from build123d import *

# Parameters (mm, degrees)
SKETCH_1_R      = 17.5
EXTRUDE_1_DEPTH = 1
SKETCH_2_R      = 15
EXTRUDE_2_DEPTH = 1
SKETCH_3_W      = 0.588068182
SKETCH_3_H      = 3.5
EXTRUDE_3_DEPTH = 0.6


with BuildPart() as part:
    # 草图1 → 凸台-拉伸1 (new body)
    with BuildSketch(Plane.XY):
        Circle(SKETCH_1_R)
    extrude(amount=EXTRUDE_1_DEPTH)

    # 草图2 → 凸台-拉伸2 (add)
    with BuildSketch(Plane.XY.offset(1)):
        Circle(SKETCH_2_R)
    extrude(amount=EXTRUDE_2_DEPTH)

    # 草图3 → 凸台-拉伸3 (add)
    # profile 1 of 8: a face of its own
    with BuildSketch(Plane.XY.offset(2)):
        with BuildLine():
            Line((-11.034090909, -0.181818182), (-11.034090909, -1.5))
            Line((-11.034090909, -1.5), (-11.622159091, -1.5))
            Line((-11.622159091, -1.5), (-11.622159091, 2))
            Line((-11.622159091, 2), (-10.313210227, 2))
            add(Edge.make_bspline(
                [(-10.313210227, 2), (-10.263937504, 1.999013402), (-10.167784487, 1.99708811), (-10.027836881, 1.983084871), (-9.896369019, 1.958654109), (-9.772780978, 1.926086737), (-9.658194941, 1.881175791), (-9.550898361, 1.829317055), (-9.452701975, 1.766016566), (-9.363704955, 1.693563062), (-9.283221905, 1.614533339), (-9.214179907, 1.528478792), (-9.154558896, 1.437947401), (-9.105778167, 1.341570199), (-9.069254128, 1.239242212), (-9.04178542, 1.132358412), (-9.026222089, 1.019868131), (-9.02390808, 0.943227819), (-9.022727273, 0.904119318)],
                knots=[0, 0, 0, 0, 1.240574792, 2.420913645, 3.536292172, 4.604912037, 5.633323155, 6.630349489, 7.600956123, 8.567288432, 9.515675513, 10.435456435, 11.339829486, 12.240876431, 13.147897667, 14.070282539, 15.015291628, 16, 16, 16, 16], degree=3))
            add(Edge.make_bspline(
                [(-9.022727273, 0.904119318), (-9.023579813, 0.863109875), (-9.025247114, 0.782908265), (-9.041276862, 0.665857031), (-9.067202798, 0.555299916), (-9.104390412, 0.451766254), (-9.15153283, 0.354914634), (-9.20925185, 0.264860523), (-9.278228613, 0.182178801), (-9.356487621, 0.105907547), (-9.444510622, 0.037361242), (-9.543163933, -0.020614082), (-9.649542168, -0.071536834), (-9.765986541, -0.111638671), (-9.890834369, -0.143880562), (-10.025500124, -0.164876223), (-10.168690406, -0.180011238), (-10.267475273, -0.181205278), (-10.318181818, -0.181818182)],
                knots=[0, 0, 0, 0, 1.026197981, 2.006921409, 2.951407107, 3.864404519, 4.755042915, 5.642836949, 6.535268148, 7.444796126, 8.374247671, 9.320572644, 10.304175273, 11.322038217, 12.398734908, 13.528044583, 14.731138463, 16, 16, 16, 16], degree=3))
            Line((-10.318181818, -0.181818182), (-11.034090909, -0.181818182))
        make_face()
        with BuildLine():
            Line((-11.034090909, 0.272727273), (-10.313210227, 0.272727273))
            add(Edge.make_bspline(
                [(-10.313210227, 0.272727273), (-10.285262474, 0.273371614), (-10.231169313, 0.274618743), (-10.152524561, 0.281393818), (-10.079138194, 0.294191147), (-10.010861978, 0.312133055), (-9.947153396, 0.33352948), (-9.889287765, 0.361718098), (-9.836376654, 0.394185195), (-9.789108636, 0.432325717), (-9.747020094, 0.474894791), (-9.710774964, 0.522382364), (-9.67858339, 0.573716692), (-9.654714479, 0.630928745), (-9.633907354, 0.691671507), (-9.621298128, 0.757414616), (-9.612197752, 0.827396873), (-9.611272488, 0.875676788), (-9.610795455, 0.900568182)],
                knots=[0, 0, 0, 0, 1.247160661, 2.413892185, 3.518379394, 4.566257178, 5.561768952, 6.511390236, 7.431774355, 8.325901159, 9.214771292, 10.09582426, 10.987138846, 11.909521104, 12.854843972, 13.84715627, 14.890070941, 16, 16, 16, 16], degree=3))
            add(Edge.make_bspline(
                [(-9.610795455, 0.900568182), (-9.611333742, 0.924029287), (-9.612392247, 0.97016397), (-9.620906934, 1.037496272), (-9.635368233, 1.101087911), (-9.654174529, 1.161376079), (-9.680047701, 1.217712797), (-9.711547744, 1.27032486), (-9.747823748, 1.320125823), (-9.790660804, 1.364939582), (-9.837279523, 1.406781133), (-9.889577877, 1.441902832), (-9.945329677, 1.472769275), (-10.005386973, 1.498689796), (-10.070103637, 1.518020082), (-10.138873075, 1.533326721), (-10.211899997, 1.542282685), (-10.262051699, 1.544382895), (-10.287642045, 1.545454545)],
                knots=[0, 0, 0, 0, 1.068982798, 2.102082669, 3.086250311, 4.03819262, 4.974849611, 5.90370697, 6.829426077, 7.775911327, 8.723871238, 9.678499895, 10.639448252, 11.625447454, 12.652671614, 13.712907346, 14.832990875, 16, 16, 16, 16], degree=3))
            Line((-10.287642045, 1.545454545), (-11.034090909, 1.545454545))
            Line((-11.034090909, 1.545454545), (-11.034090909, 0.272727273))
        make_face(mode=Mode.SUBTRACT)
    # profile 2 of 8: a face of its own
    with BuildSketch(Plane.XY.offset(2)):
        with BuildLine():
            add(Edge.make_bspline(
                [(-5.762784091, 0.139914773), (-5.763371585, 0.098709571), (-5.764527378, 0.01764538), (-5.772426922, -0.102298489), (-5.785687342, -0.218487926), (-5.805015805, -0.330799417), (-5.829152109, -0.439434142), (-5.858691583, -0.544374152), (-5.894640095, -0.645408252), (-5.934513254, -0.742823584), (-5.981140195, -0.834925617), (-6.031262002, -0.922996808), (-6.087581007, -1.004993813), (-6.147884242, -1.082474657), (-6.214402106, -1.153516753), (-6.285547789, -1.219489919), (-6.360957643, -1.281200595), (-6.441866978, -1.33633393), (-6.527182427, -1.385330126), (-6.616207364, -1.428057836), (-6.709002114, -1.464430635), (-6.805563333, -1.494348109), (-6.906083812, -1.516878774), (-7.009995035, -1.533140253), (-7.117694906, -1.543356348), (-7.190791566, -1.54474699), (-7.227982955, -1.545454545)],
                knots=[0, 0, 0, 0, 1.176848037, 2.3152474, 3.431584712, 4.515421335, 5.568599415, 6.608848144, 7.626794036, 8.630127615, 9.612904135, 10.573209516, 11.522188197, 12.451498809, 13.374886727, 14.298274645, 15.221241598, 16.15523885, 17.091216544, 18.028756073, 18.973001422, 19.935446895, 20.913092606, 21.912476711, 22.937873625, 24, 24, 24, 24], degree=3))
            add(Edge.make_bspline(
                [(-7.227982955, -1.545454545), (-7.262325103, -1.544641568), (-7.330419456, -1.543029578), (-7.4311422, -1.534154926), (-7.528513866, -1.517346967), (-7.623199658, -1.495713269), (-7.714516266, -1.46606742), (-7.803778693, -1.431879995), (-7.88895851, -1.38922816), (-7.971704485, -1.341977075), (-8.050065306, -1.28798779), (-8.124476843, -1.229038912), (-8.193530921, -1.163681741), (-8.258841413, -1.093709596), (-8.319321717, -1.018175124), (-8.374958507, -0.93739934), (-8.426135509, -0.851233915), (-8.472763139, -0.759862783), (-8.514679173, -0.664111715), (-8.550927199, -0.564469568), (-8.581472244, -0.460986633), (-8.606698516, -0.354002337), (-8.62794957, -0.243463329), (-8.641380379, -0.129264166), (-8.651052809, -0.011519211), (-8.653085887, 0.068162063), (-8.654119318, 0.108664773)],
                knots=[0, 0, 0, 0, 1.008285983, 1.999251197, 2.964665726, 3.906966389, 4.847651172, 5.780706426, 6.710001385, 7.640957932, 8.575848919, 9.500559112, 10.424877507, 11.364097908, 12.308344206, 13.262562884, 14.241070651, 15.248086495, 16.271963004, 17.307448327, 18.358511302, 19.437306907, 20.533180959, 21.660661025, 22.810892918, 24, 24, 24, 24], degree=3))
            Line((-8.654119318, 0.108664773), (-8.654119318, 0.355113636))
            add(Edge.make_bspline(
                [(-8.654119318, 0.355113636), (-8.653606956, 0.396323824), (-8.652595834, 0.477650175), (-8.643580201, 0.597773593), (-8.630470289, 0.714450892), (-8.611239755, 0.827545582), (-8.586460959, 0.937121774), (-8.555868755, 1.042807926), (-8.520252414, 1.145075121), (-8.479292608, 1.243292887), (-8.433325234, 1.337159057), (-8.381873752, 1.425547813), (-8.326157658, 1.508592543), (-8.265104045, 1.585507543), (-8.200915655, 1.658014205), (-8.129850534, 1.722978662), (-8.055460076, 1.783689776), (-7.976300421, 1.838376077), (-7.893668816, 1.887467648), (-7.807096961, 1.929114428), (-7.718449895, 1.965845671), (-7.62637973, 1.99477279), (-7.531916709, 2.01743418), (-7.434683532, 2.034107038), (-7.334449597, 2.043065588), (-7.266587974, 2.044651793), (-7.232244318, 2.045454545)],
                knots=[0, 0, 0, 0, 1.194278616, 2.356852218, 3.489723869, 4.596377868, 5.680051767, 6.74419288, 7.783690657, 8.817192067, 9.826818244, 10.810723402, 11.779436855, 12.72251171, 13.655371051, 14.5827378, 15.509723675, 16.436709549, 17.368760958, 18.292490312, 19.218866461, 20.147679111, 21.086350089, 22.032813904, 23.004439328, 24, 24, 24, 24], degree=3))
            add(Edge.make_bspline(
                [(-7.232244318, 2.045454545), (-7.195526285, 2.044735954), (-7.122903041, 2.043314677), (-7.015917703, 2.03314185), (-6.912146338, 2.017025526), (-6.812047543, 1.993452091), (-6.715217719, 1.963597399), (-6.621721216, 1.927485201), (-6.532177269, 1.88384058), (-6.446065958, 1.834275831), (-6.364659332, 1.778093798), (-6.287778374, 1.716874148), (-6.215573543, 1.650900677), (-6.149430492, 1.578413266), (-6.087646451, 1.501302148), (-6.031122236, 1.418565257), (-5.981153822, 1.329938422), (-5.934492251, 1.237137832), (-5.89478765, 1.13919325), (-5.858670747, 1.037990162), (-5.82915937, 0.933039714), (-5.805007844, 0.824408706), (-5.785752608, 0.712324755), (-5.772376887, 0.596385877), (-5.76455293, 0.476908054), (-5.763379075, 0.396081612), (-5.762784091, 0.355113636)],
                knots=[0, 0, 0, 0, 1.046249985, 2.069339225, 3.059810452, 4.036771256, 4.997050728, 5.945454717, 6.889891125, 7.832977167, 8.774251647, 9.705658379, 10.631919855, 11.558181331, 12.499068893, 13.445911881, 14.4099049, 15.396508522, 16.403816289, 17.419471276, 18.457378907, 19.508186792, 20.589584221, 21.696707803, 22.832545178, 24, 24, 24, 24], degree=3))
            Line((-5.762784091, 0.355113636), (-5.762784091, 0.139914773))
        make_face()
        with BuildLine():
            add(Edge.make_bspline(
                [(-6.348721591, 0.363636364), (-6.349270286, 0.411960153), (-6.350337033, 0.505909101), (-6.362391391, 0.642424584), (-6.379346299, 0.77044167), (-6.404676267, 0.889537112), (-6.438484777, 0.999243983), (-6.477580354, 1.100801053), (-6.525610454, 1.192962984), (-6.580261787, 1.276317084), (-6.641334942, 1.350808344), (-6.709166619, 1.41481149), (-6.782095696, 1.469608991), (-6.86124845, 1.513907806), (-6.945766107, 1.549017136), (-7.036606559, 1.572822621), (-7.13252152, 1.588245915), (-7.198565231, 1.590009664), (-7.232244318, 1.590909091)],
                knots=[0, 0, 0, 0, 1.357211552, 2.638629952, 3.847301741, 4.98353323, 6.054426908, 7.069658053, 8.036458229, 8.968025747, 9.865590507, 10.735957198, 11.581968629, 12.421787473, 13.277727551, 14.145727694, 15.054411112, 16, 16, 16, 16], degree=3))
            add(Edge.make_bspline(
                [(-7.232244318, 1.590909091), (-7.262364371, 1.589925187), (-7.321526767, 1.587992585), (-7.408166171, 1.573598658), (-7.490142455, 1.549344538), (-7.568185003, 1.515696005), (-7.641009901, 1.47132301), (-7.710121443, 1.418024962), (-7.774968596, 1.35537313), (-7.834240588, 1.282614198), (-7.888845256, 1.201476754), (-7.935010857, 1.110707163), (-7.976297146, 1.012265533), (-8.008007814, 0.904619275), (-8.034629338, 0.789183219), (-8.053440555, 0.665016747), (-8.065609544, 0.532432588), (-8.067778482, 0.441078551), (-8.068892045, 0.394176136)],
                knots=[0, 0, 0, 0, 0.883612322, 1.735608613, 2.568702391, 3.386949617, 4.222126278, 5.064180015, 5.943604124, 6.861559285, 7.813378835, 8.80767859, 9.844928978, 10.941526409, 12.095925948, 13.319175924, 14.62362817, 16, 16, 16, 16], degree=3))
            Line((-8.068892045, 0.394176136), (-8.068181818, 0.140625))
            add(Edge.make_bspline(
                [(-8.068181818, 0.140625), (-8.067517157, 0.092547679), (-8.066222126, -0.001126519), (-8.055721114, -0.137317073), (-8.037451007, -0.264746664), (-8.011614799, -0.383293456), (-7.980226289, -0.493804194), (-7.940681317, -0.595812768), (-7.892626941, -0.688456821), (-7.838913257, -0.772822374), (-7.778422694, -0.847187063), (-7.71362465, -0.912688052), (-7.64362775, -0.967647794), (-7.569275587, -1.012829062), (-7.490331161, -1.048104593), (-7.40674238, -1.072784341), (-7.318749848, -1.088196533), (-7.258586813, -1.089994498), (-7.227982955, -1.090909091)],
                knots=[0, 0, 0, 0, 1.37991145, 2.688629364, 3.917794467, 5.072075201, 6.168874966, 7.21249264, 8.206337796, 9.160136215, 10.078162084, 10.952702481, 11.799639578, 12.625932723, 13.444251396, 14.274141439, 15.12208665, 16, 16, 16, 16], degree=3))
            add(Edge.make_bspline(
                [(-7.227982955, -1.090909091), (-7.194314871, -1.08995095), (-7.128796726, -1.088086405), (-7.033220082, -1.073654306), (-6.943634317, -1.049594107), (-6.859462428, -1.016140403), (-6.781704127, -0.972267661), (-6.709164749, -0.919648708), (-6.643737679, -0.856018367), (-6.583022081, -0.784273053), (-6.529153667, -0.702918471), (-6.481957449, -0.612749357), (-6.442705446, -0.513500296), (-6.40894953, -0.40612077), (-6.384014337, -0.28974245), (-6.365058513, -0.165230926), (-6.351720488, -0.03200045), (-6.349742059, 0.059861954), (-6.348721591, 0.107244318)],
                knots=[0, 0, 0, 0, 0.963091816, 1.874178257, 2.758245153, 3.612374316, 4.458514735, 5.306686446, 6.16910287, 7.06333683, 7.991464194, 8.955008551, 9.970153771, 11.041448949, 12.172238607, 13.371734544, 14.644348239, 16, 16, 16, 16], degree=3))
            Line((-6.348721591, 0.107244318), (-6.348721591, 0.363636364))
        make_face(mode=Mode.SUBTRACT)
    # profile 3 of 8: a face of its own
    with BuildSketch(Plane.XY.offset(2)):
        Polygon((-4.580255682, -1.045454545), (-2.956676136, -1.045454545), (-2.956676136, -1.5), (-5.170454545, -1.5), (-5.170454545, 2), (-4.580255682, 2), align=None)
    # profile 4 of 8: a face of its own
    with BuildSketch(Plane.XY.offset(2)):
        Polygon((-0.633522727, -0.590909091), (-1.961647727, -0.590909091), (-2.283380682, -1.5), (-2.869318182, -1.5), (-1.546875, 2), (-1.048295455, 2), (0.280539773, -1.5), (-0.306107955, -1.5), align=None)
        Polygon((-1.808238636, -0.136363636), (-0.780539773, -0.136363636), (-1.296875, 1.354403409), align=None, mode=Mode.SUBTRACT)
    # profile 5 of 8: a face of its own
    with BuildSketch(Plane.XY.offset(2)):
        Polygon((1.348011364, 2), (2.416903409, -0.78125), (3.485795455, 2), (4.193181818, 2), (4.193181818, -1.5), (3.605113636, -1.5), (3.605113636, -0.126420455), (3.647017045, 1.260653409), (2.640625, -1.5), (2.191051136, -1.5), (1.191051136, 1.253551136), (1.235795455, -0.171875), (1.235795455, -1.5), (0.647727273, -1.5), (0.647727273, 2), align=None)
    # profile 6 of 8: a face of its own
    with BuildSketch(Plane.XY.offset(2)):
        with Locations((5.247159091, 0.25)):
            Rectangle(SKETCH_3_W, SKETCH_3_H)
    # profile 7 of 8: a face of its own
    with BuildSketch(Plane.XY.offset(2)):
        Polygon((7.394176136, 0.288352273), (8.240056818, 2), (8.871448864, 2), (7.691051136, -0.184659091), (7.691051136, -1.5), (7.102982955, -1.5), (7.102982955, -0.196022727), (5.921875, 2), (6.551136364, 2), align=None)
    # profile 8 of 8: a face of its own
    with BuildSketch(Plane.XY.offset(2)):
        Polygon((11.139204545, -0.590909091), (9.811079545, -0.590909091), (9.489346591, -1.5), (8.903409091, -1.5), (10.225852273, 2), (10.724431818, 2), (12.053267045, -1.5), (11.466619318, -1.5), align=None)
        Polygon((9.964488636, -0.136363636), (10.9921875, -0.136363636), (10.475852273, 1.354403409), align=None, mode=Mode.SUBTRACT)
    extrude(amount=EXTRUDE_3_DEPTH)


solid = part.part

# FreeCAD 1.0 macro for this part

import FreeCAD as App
import Part
import Sketcher
from FreeCAD import Vector

doc = App.newDocument("Part")
body = doc.addObject("PartDesign::Body", "Body")

# Sketch on XY plane
sketch1 = body.newObject("Sketcher::SketchObject", "Sketch")
sketch1.AttachmentSupport = (doc.getObject("XY_Plane"), [""])
sketch1.MapMode = "FlatFace"
sketch1.addGeometry(Part.Circle(Vector(0, 0, 0), Vector(0, 0, 1), 18), False)
sketch1.addConstraint(Sketcher.Constraint("Coincident", 0, 3, -1, 1))
sketch1.addConstraint(Sketcher.Constraint("Diameter", 0, 35.0))
pad1 = body.newObject("PartDesign::Pad", "Pad")
pad1.Profile = sketch1
pad1.Length = 1

# Sketch on XY plane
sketch2 = body.newObject("Sketcher::SketchObject", "Sketch001")
sketch2.AttachmentSupport = (doc.getObject("XY_Plane"), [""])
sketch2.MapMode = "FlatFace"
sketch2.AttachmentOffset = App.Placement(Vector(0, 0, 1), App.Rotation())
sketch2.addGeometry(Part.Circle(Vector(0, 0, 0), Vector(0, 0, 1), 15), False)
sketch2.addConstraint(Sketcher.Constraint("Coincident", 0, 3, -1, 1))
sketch2.addConstraint(Sketcher.Constraint("Diameter", 0, 30.0))
pad2 = body.newObject("PartDesign::Pad", "Pad001")
pad2.Profile = sketch2
pad2.Length = 1

# Sketch on XY plane
sketch3 = body.newObject("Sketcher::SketchObject", "Sketch002")
sketch3.AttachmentSupport = (doc.getObject("XY_Plane"), [""])
sketch3.MapMode = "FlatFace"
sketch3.AttachmentOffset = App.Placement(Vector(0, 0, 2), App.Rotation())
sketch3.addGeometry(Part.LineSegment(Vector(-11.034091, -1.5, 0), Vector(-11.034091, -0.181818, 0)), False)
sketch3.addGeometry(Part.LineSegment(Vector(-11.034091, -0.181818, 0), Vector(-10.318182, -0.181818, 0)), False)
sketch3.addGeometry(Part.BSplineCurve([Vector(-9.022727, 0.904119, 0), Vector(-9.02358, 0.86311, 0), Vector(-9.025247, 0.782908, 0), Vector(-9.041277, 0.665857, 0), Vector(-9.067203, 0.5553, 0), Vector(-9.10439, 0.451766, 0), Vector(-9.151533, 0.354915, 0), Vector(-9.209252, 0.264861, 0), Vector(-9.278229, 0.182179, 0), Vector(-9.356488, 0.105908, 0), Vector(-9.444511, 0.037361, 0), Vector(-9.543164, -0.020614, 0), Vector(-9.649542, -0.071537, 0), Vector(-9.765987, -0.111639, 0), Vector(-9.890834, -0.143881, 0), Vector(-10.0255, -0.164876, 0), Vector(-10.16869, -0.180011, 0), Vector(-10.267475, -0.181205, 0), Vector(-10.318182, -0.181818, 0)], [4, 1, 1, 1, 1, 1, 1, 1, 1, 1, 1, 1, 1, 1, 1, 1, 4], [0, 1.026197981, 2.006921409, 2.951407107, 3.864404519, 4.755042915, 5.642836949, 6.535268148, 7.444796126, 8.374247671, 9.320572644, 10.304175273, 11.322038217, 12.398734908, 13.528044583, 14.731138463, 16], False, 3, [1, 1, 1, 1, 1, 1, 1, 1, 1, 1, 1, 1, 1, 1, 1, 1, 1, 1, 1], False), False)
sketch3.addGeometry(Part.BSplineCurve([Vector(-10.31321, 2, 0), Vector(-10.263938, 1.999013, 0), Vector(-10.167784, 1.997088, 0), Vector(-10.027837, 1.983085, 0), Vector(-9.896369, 1.958654, 0), Vector(-9.772781, 1.926087, 0), Vector(-9.658195, 1.881176, 0), Vector(-9.550898, 1.829317, 0), Vector(-9.452702, 1.766017, 0), Vector(-9.363705, 1.693563, 0), Vector(-9.283222, 1.614533, 0), Vector(-9.21418, 1.528479, 0), Vector(-9.154559, 1.437947, 0), Vector(-9.105778, 1.34157, 0), Vector(-9.069254, 1.239242, 0), Vector(-9.041785, 1.132358, 0), Vector(-9.026222, 1.019868, 0), Vector(-9.023908, 0.943228, 0), Vector(-9.022727, 0.904119, 0)], [4, 1, 1, 1, 1, 1, 1, 1, 1, 1, 1, 1, 1, 1, 1, 1, 4], [0, 1.240574792, 2.420913645, 3.536292172, 4.604912037, 5.633323155, 6.630349489, 7.600956123, 8.567288432, 9.515675513, 10.435456435, 11.339829486, 12.240876431, 13.147897667, 14.070282539, 15.015291628, 16], False, 3, [1, 1, 1, 1, 1, 1, 1, 1, 1, 1, 1, 1, 1, 1, 1, 1, 1, 1, 1], False), False)
sketch3.addGeometry(Part.LineSegment(Vector(-10.31321, 2, 0), Vector(-11.622159, 2, 0)), False)
sketch3.addGeometry(Part.LineSegment(Vector(-11.622159, 2, 0), Vector(-11.622159, -1.5, 0)), False)
sketch3.addGeometry(Part.LineSegment(Vector(-11.622159, -1.5, 0), Vector(-11.034091, -1.5, 0)), False)
sketch3.addGeometry(Part.LineSegment(Vector(-11.034091, 0.272727, 0), Vector(-11.034091, 1.545455, 0)), False)
sketch3.addGeometry(Part.LineSegment(Vector(-11.034091, 1.545455, 0), Vector(-10.287642, 1.545455, 0)), False)
sketch3.addGeometry(Part.BSplineCurve([Vector(-9.610795, 0.900568, 0), Vector(-9.611334, 0.924029, 0), Vector(-9.612392, 0.970164, 0), Vector(-9.620907, 1.037496, 0), Vector(-9.635368, 1.101088, 0), Vector(-9.654175, 1.161376, 0), Vector(-9.680048, 1.217713, 0), Vector(-9.711548, 1.270325, 0), Vector(-9.747824, 1.320126, 0), Vector(-9.790661, 1.36494, 0), Vector(-9.83728, 1.406781, 0), Vector(-9.889578, 1.441903, 0), Vector(-9.94533, 1.472769, 0), Vector(-10.005387, 1.49869, 0), Vector(-10.070104, 1.51802, 0), Vector(-10.138873, 1.533327, 0), Vector(-10.2119, 1.542283, 0), Vector(-10.262052, 1.544383, 0), Vector(-10.287642, 1.545455, 0)], [4, 1, 1, 1, 1, 1, 1, 1, 1, 1, 1, 1, 1, 1, 1, 1, 4], [0, 1.068982798, 2.102082669, 3.086250311, 4.03819262, 4.974849611, 5.90370697, 6.829426077, 7.775911327, 8.723871238, 9.678499895, 10.639448252, 11.625447454, 12.652671614, 13.712907346, 14.832990875, 16], False, 3, [1, 1, 1, 1, 1, 1, 1, 1, 1, 1, 1, 1, 1, 1, 1, 1, 1, 1, 1], False), False)
sketch3.addGeometry(Part.BSplineCurve([Vector(-10.31321, 0.272727, 0), Vector(-10.285262, 0.273372, 0), Vector(-10.231169, 0.274619, 0), Vector(-10.152525, 0.281394, 0), Vector(-10.079138, 0.294191, 0), Vector(-10.010862, 0.312133, 0), Vector(-9.947153, 0.333529, 0), Vector(-9.889288, 0.361718, 0), Vector(-9.836377, 0.394185, 0), Vector(-9.789109, 0.432326, 0), Vector(-9.74702, 0.474895, 0), Vector(-9.710775, 0.522382, 0), Vector(-9.678583, 0.573717, 0), Vector(-9.654714, 0.630929, 0), Vector(-9.633907, 0.691672, 0), Vector(-9.621298, 0.757415, 0), Vector(-9.612198, 0.827397, 0), Vector(-9.611272, 0.875677, 0), Vector(-9.610795, 0.900568, 0)], [4, 1, 1, 1, 1, 1, 1, 1, 1, 1, 1, 1, 1, 1, 1, 1, 4], [0, 1.247160661, 2.413892185, 3.518379394, 4.566257178, 5.561768952, 6.511390236, 7.431774355, 8.325901159, 9.214771292, 10.09582426, 10.987138846, 11.909521104, 12.854843972, 13.84715627, 14.890070941, 16], False, 3, [1, 1, 1, 1, 1, 1, 1, 1, 1, 1, 1, 1, 1, 1, 1, 1, 1, 1, 1], False), False)
sketch3.addGeometry(Part.LineSegment(Vector(-10.31321, 0.272727, 0), Vector(-11.034091, 0.272727, 0)), False)
sketch3.addGeometry(Part.BSplineCurve([Vector(-5.762784, 0.139915, 0), Vector(-5.763372, 0.09871, 0), Vector(-5.764527, 0.017645, 0), Vector(-5.772427, -0.102298, 0), Vector(-5.785687, -0.218488, 0), Vector(-5.805016, -0.330799, 0), Vector(-5.829152, -0.439434, 0), Vector(-5.858692, -0.544374, 0), Vector(-5.89464, -0.645408, 0), Vector(-5.934513, -0.742824, 0), Vector(-5.98114, -0.834926, 0), Vector(-6.031262, -0.922997, 0), Vector(-6.087581, -1.004994, 0), Vector(-6.147884, -1.082475, 0), Vector(-6.214402, -1.153517, 0), Vector(-6.285548, -1.21949, 0), Vector(-6.360958, -1.281201, 0), Vector(-6.441867, -1.336334, 0), Vector(-6.527182, -1.38533, 0), Vector(-6.616207, -1.428058, 0), Vector(-6.709002, -1.464431, 0), Vector(-6.805563, -1.494348, 0), Vector(-6.906084, -1.516879, 0), Vector(-7.009995, -1.53314, 0), Vector(-7.117695, -1.543356, 0), Vector(-7.190792, -1.544747, 0), Vector(-7.227983, -1.545455, 0)], [4, 1, 1, 1, 1, 1, 1, 1, 1, 1, 1, 1, 1, 1, 1, 1, 1, 1, 1, 1, 1, 1, 1, 1, 4], [0, 1.176848037, 2.3152474, 3.431584712, 4.515421335, 5.568599415, 6.608848144, 7.626794036, 8.630127615, 9.612904135, 10.573209516, 11.522188197, 12.451498809, 13.374886727, 14.298274645, 15.221241598, 16.15523885, 17.091216544, 18.028756073, 18.973001422, 19.935446895, 20.913092606, 21.912476711, 22.937873625, 24], False, 3, [1, 1, 1, 1, 1, 1, 1, 1, 1, 1, 1, 1, 1, 1, 1, 1, 1, 1, 1, 1, 1, 1, 1, 1, 1, 1, 1], False), False)
sketch3.addGeometry(Part.LineSegment(Vector(-5.762784, 0.139915, 0), Vector(-5.762784, 0.355114, 0)), False)
sketch3.addGeometry(Part.BSplineCurve([Vector(-7.232244, 2.045455, 0), Vector(-7.195526, 2.044736, 0), Vector(-7.122903, 2.043315, 0), Vector(-7.015918, 2.033142, 0), Vector(-6.912146, 2.017026, 0), Vector(-6.812048, 1.993452, 0), Vector(-6.715218, 1.963597, 0), Vector(-6.621721, 1.927485, 0), Vector(-6.532177, 1.883841, 0), Vector(-6.446066, 1.834276, 0), Vector(-6.364659, 1.778094, 0), Vector(-6.287778, 1.716874, 0), Vector(-6.215574, 1.650901, 0), Vector(-6.14943, 1.578413, 0), Vector(-6.087646, 1.501302, 0), Vector(-6.031122, 1.418565, 0), Vector(-5.981154, 1.329938, 0), Vector(-5.934492, 1.237138, 0), Vector(-5.894788, 1.139193, 0), Vector(-5.858671, 1.03799, 0), Vector(-5.829159, 0.93304, 0), Vector(-5.805008, 0.824409, 0), Vector(-5.785753, 0.712325, 0), Vector(-5.772377, 0.596386, 0), Vector(-5.764553, 0.476908, 0), Vector(-5.763379, 0.396082, 0), Vector(-5.762784, 0.355114, 0)], [4, 1, 1, 1, 1, 1, 1, 1, 1, 1, 1, 1, 1, 1, 1, 1, 1, 1, 1, 1, 1, 1, 1, 1, 4], [0, 1.046249985, 2.069339225, 3.059810452, 4.036771256, 4.997050728, 5.945454717, 6.889891125, 7.832977167, 8.774251647, 9.705658379, 10.631919855, 11.558181331, 12.499068893, 13.445911881, 14.4099049, 15.396508522, 16.403816289, 17.419471276, 18.457378907, 19.508186792, 20.589584221, 21.696707803, 22.832545178, 24], False, 3, [1, 1, 1, 1, 1, 1, 1, 1, 1, 1, 1, 1, 1, 1, 1, 1, 1, 1, 1, 1, 1, 1, 1, 1, 1, 1, 1], False), False)
sketch3.addGeometry(Part.BSplineCurve([Vector(-8.654119, 0.355114, 0), Vector(-8.653607, 0.396324, 0), Vector(-8.652596, 0.47765, 0), Vector(-8.64358, 0.597774, 0), Vector(-8.63047, 0.714451, 0), Vector(-8.61124, 0.827546, 0), Vector(-8.586461, 0.937122, 0), Vector(-8.555869, 1.042808, 0), Vector(-8.520252, 1.145075, 0), Vector(-8.479293, 1.243293, 0), Vector(-8.433325, 1.337159, 0), Vector(-8.381874, 1.425548, 0), Vector(-8.326158, 1.508593, 0), Vector(-8.265104, 1.585508, 0), Vector(-8.200916, 1.658014, 0), Vector(-8.129851, 1.722979, 0), Vector(-8.05546, 1.78369, 0), Vector(-7.9763, 1.838376, 0), Vector(-7.893669, 1.887468, 0), Vector(-7.807097, 1.929114, 0), Vector(-7.71845, 1.965846, 0), Vector(-7.62638, 1.994773, 0), Vector(-7.531917, 2.017434, 0), Vector(-7.434684, 2.034107, 0), Vector(-7.33445, 2.043066, 0), Vector(-7.266588, 2.044652, 0), Vector(-7.232244, 2.045455, 0)], [4, 1, 1, 1, 1, 1, 1, 1, 1, 1, 1, 1, 1, 1, 1, 1, 1, 1, 1, 1, 1, 1, 1, 1, 4], [0, 1.194278616, 2.356852218, 3.489723869, 4.596377868, 5.680051767, 6.74419288, 7.783690657, 8.817192067, 9.826818244, 10.810723402, 11.779436855, 12.72251171, 13.655371051, 14.5827378, 15.509723675, 16.436709549, 17.368760958, 18.292490312, 19.218866461, 20.147679111, 21.086350089, 22.032813904, 23.004439328, 24], False, 3, [1, 1, 1, 1, 1, 1, 1, 1, 1, 1, 1, 1, 1, 1, 1, 1, 1, 1, 1, 1, 1, 1, 1, 1, 1, 1, 1], False), False)
sketch3.addGeometry(Part.LineSegment(Vector(-8.654119, 0.355114, 0), Vector(-8.654119, 0.108665, 0)), False)
sketch3.addGeometry(Part.BSplineCurve([Vector(-7.227983, -1.545455, 0), Vector(-7.262325, -1.544642, 0), Vector(-7.330419, -1.54303, 0), Vector(-7.431142, -1.534155, 0), Vector(-7.528514, -1.517347, 0), Vector(-7.6232, -1.495713, 0), Vector(-7.714516, -1.466067, 0), Vector(-7.803779, -1.43188, 0), Vector(-7.888959, -1.389228, 0), Vector(-7.971704, -1.341977, 0), Vector(-8.050065, -1.287988, 0), Vector(-8.124477, -1.229039, 0), Vector(-8.193531, -1.163682, 0), Vector(-8.258841, -1.09371, 0), Vector(-8.319322, -1.018175, 0), Vector(-8.374959, -0.937399, 0), Vector(-8.426136, -0.851234, 0), Vector(-8.472763, -0.759863, 0), Vector(-8.514679, -0.664112, 0), Vector(-8.550927, -0.56447, 0), Vector(-8.581472, -0.460987, 0), Vector(-8.606699, -0.354002, 0), Vector(-8.62795, -0.243463, 0), Vector(-8.64138, -0.129264, 0), Vector(-8.651053, -0.011519, 0), Vector(-8.653086, 0.068162, 0), Vector(-8.654119, 0.108665, 0)], [4, 1, 1, 1, 1, 1, 1, 1, 1, 1, 1, 1, 1, 1, 1, 1, 1, 1, 1, 1, 1, 1, 1, 1, 4], [0, 1.008285983, 1.999251197, 2.964665726, 3.906966389, 4.847651172, 5.780706426, 6.710001385, 7.640957932, 8.575848919, 9.500559112, 10.424877507, 11.364097908, 12.308344206, 13.262562884, 14.241070651, 15.248086495, 16.271963004, 17.307448327, 18.358511302, 19.437306907, 20.533180959, 21.660661025, 22.810892918, 24], False, 3, [1, 1, 1, 1, 1, 1, 1, 1, 1, 1, 1, 1, 1, 1, 1, 1, 1, 1, 1, 1, 1, 1, 1, 1, 1, 1, 1], False), False)
sketch3.addGeometry(Part.LineSegment(Vector(-6.348722, 0.363636, 0), Vector(-6.348722, 0.107244, 0)), False)
sketch3.addGeometry(Part.BSplineCurve([Vector(-7.227983, -1.090909, 0), Vector(-7.194315, -1.089951, 0), Vector(-7.128797, -1.088086, 0), Vector(-7.03322, -1.073654, 0), Vector(-6.943634, -1.049594, 0), Vector(-6.859462, -1.01614, 0), Vector(-6.781704, -0.972268, 0), Vector(-6.709165, -0.919649, 0), Vector(-6.643738, -0.856018, 0), Vector(-6.583022, -0.784273, 0), Vector(-6.529154, -0.702918, 0), Vector(-6.481957, -0.612749, 0), Vector(-6.442705, -0.5135, 0), Vector(-6.40895, -0.406121, 0), Vector(-6.384014, -0.289742, 0), Vector(-6.365059, -0.165231, 0), Vector(-6.35172, -0.032, 0), Vector(-6.349742, 0.059862, 0), Vector(-6.348722, 0.107244, 0)], [4, 1, 1, 1, 1, 1, 1, 1, 1, 1, 1, 1, 1, 1, 1, 1, 4], [0, 0.963091816, 1.874178257, 2.758245153, 3.612374316, 4.458514735, 5.306686446, 6.16910287, 7.06333683, 7.991464194, 8.955008551, 9.970153771, 11.041448949, 12.172238607, 13.371734544, 14.644348239, 16], False, 3, [1, 1, 1, 1, 1, 1, 1, 1, 1, 1, 1, 1, 1, 1, 1, 1, 1, 1, 1], False), False)
sketch3.addGeometry(Part.BSplineCurve([Vector(-8.068182, 0.140625, 0), Vector(-8.067517, 0.092548, 0), Vector(-8.066222, -0.001127, 0), Vector(-8.055721, -0.137317, 0), Vector(-8.037451, -0.264747, 0), Vector(-8.011615, -0.383293, 0), Vector(-7.980226, -0.493804, 0), Vector(-7.940681, -0.595813, 0), Vector(-7.892627, -0.688457, 0), Vector(-7.838913, -0.772822, 0), Vector(-7.778423, -0.847187, 0), Vector(-7.713625, -0.912688, 0), Vector(-7.643628, -0.967648, 0), Vector(-7.569276, -1.012829, 0), Vector(-7.490331, -1.048105, 0), Vector(-7.406742, -1.072784, 0), Vector(-7.31875, -1.088197, 0), Vector(-7.258587, -1.089994, 0), Vector(-7.227983, -1.090909, 0)], [4, 1, 1, 1, 1, 1, 1, 1, 1, 1, 1, 1, 1, 1, 1, 1, 4], [0, 1.37991145, 2.688629364, 3.917794467, 5.072075201, 6.168874966, 7.21249264, 8.206337796, 9.160136215, 10.078162084, 10.952702481, 11.799639578, 12.625932723, 13.444251396, 14.274141439, 15.12208665, 16], False, 3, [1, 1, 1, 1, 1, 1, 1, 1, 1, 1, 1, 1, 1, 1, 1, 1, 1, 1, 1], False), False)
sketch3.addGeometry(Part.LineSegment(Vector(-8.068182, 0.140625, 0), Vector(-8.068892, 0.394176, 0)), False)
sketch3.addGeometry(Part.BSplineCurve([Vector(-7.232244, 1.590909, 0), Vector(-7.262364, 1.589925, 0), Vector(-7.321527, 1.587993, 0), Vector(-7.408166, 1.573599, 0), Vector(-7.490142, 1.549345, 0), Vector(-7.568185, 1.515696, 0), Vector(-7.64101, 1.471323, 0), Vector(-7.710121, 1.418025, 0), Vector(-7.774969, 1.355373, 0), Vector(-7.834241, 1.282614, 0), Vector(-7.888845, 1.201477, 0), Vector(-7.935011, 1.110707, 0), Vector(-7.976297, 1.012266, 0), Vector(-8.008008, 0.904619, 0), Vector(-8.034629, 0.789183, 0), Vector(-8.053441, 0.665017, 0), Vector(-8.06561, 0.532433, 0), Vector(-8.067778, 0.441079, 0), Vector(-8.068892, 0.394176, 0)], [4, 1, 1, 1, 1, 1, 1, 1, 1, 1, 1, 1, 1, 1, 1, 1, 4], [0, 0.883612322, 1.735608613, 2.568702391, 3.386949617, 4.222126278, 5.064180015, 5.943604124, 6.861559285, 7.813378835, 8.80767859, 9.844928978, 10.941526409, 12.095925948, 13.319175924, 14.62362817, 16], False, 3, [1, 1, 1, 1, 1, 1, 1, 1, 1, 1, 1, 1, 1, 1, 1, 1, 1, 1, 1], False), False)
sketch3.addGeometry(Part.BSplineCurve([Vector(-6.348722, 0.363636, 0), Vector(-6.34927, 0.41196, 0), Vector(-6.350337, 0.505909, 0), Vector(-6.362391, 0.642425, 0), Vector(-6.379346, 0.770442, 0), Vector(-6.404676, 0.889537, 0), Vector(-6.438485, 0.999244, 0), Vector(-6.47758, 1.100801, 0), Vector(-6.52561, 1.192963, 0), Vector(-6.580262, 1.276317, 0), Vector(-6.641335, 1.350808, 0), Vector(-6.709167, 1.414811, 0), Vector(-6.782096, 1.469609, 0), Vector(-6.861248, 1.513908, 0), Vector(-6.945766, 1.549017, 0), Vector(-7.036607, 1.572823, 0), Vector(-7.132522, 1.588246, 0), Vector(-7.198565, 1.59001, 0), Vector(-7.232244, 1.590909, 0)], [4, 1, 1, 1, 1, 1, 1, 1, 1, 1, 1, 1, 1, 1, 1, 1, 4], [0, 1.357211552, 2.638629952, 3.847301741, 4.98353323, 6.054426908, 7.069658053, 8.036458229, 8.968025747, 9.865590507, 10.735957198, 11.581968629, 12.421787473, 13.277727551, 14.145727694, 15.054411112, 16], False, 3, [1, 1, 1, 1, 1, 1, 1, 1, 1, 1, 1, 1, 1, 1, 1, 1, 1, 1, 1], False), False)
sketch3.addGeometry(Part.LineSegment(Vector(-2.956676, -1.045455, 0), Vector(-4.580256, -1.045455, 0)), False)
sketch3.addGeometry(Part.LineSegment(Vector(-4.580256, -1.045455, 0), Vector(-4.580256, 2, 0)), False)
sketch3.addGeometry(Part.LineSegment(Vector(-4.580256, 2, 0), Vector(-5.170455, 2, 0)), False)
sketch3.addGeometry(Part.LineSegment(Vector(-5.170455, 2, 0), Vector(-5.170455, -1.5, 0)), False)
sketch3.addGeometry(Part.LineSegment(Vector(-5.170455, -1.5, 0), Vector(-2.956676, -1.5, 0)), False)
sketch3.addGeometry(Part.LineSegment(Vector(-2.956676, -1.5, 0), Vector(-2.956676, -1.045455, 0)), False)
sketch3.addGeometry(Part.LineSegment(Vector(-1.961648, -0.590909, 0), Vector(-0.633523, -0.590909, 0)), False)
sketch3.addGeometry(Part.LineSegment(Vector(-0.633523, -0.590909, 0), Vector(-0.306108, -1.5, 0)), False)
sketch3.addGeometry(Part.LineSegment(Vector(-0.306108, -1.5, 0), Vector(0.28054, -1.5, 0)), False)
sketch3.addGeometry(Part.LineSegment(Vector(0.28054, -1.5, 0), Vector(-1.048295, 2, 0)), False)
sketch3.addGeometry(Part.LineSegment(Vector(-1.048295, 2, 0), Vector(-1.546875, 2, 0)), False)
sketch3.addGeometry(Part.LineSegment(Vector(-1.546875, 2, 0), Vector(-2.869318, -1.5, 0)), False)
sketch3.addGeometry(Part.LineSegment(Vector(-2.869318, -1.5, 0), Vector(-2.283381, -1.5, 0)), False)
sketch3.addGeometry(Part.LineSegment(Vector(-2.283381, -1.5, 0), Vector(-1.961648, -0.590909, 0)), False)
sketch3.addGeometry(Part.LineSegment(Vector(-1.808239, -0.136364, 0), Vector(-1.296875, 1.354403, 0)), False)
sketch3.addGeometry(Part.LineSegment(Vector(-1.296875, 1.354403, 0), Vector(-0.78054, -0.136364, 0)), False)
sketch3.addGeometry(Part.LineSegment(Vector(-0.78054, -0.136364, 0), Vector(-1.808239, -0.136364, 0)), False)
sketch3.addGeometry(Part.LineSegment(Vector(2.416903, -0.78125, 0), Vector(1.348011, 2, 0)), False)
sketch3.addGeometry(Part.LineSegment(Vector(1.348011, 2, 0), Vector(0.647727, 2, 0)), False)
sketch3.addGeometry(Part.LineSegment(Vector(0.647727, 2, 0), Vector(0.647727, -1.5, 0)), False)
sketch3.addGeometry(Part.LineSegment(Vector(0.647727, -1.5, 0), Vector(1.235795, -1.5, 0)), False)
sketch3.addGeometry(Part.LineSegment(Vector(1.235795, -1.5, 0), Vector(1.235795, -0.171875, 0)), False)
sketch3.addGeometry(Part.LineSegment(Vector(1.235795, -0.171875, 0), Vector(1.191051, 1.253551, 0)), False)
sketch3.addGeometry(Part.LineSegment(Vector(1.191051, 1.253551, 0), Vector(2.191051, -1.5, 0)), False)
sketch3.addGeometry(Part.LineSegment(Vector(2.191051, -1.5, 0), Vector(2.640625, -1.5, 0)), False)
sketch3.addGeometry(Part.LineSegment(Vector(2.640625, -1.5, 0), Vector(3.647017, 1.260653, 0)), False)
sketch3.addGeometry(Part.LineSegment(Vector(3.647017, 1.260653, 0), Vector(3.605114, -0.12642, 0)), False)
sketch3.addGeometry(Part.LineSegment(Vector(3.605114, -0.12642, 0), Vector(3.605114, -1.5, 0)), False)
sketch3.addGeometry(Part.LineSegment(Vector(3.605114, -1.5, 0), Vector(4.193182, -1.5, 0)), False)
sketch3.addGeometry(Part.LineSegment(Vector(4.193182, -1.5, 0), Vector(4.193182, 2, 0)), False)
sketch3.addGeometry(Part.LineSegment(Vector(4.193182, 2, 0), Vector(3.485795, 2, 0)), False)
sketch3.addGeometry(Part.LineSegment(Vector(3.485795, 2, 0), Vector(2.416903, -0.78125, 0)), False)
sketch3.addGeometry(Part.LineSegment(Vector(4.953125, 2, 0), Vector(4.953125, -1.5, 0)), False)
sketch3.addGeometry(Part.LineSegment(Vector(4.953125, -1.5, 0), Vector(5.541193, -1.5, 0)), False)
sketch3.addGeometry(Part.LineSegment(Vector(5.541193, -1.5, 0), Vector(5.541193, 2, 0)), False)
sketch3.addGeometry(Part.LineSegment(Vector(5.541193, 2, 0), Vector(4.953125, 2, 0)), False)
sketch3.addGeometry(Part.LineSegment(Vector(8.240057, 2, 0), Vector(7.394176, 0.288352, 0)), False)
sketch3.addGeometry(Part.LineSegment(Vector(7.394176, 0.288352, 0), Vector(6.551136, 2, 0)), False)
sketch3.addGeometry(Part.LineSegment(Vector(6.551136, 2, 0), Vector(5.921875, 2, 0)), False)
sketch3.addGeometry(Part.LineSegment(Vector(5.921875, 2, 0), Vector(7.102983, -0.196023, 0)), False)
sketch3.addGeometry(Part.LineSegment(Vector(7.102983, -0.196023, 0), Vector(7.102983, -1.5, 0)), False)
sketch3.addGeometry(Part.LineSegment(Vector(7.102983, -1.5, 0), Vector(7.691051, -1.5, 0)), False)
sketch3.addGeometry(Part.LineSegment(Vector(7.691051, -1.5, 0), Vector(7.691051, -0.184659, 0)), False)
sketch3.addGeometry(Part.LineSegment(Vector(7.691051, -0.184659, 0), Vector(8.871449, 2, 0)), False)
sketch3.addGeometry(Part.LineSegment(Vector(8.871449, 2, 0), Vector(8.240057, 2, 0)), False)
sketch3.addGeometry(Part.LineSegment(Vector(9.81108, -0.590909, 0), Vector(11.139205, -0.590909, 0)), False)
sketch3.addGeometry(Part.LineSegment(Vector(11.139205, -0.590909, 0), Vector(11.466619, -1.5, 0)), False)
sketch3.addGeometry(Part.LineSegment(Vector(11.466619, -1.5, 0), Vector(12.053267, -1.5, 0)), False)
sketch3.addGeometry(Part.LineSegment(Vector(12.053267, -1.5, 0), Vector(10.724432, 2, 0)), False)
sketch3.addGeometry(Part.LineSegment(Vector(10.724432, 2, 0), Vector(10.225852, 2, 0)), False)
sketch3.addGeometry(Part.LineSegment(Vector(10.225852, 2, 0), Vector(8.903409, -1.5, 0)), False)
sketch3.addGeometry(Part.LineSegment(Vector(8.903409, -1.5, 0), Vector(9.489347, -1.5, 0)), False)
sketch3.addGeometry(Part.LineSegment(Vector(9.489347, -1.5, 0), Vector(9.81108, -0.590909, 0)), False)
sketch3.addGeometry(Part.LineSegment(Vector(9.964489, -0.136364, 0), Vector(10.475852, 1.354403, 0)), False)
sketch3.addGeometry(Part.LineSegment(Vector(10.475852, 1.354403, 0), Vector(10.992188, -0.136364, 0)), False)
sketch3.addGeometry(Part.LineSegment(Vector(10.992188, -0.136364, 0), Vector(9.964489, -0.136364, 0)), False)
sketch3.addConstraint(Sketcher.Constraint("Block", 2))
sketch3.addConstraint(Sketcher.Constraint("Block", 3))
sketch3.addConstraint(Sketcher.Constraint("Block", 9))
sketch3.addConstraint(Sketcher.Constraint("Block", 10))
sketch3.addConstraint(Sketcher.Constraint("Block", 12))
sketch3.addConstraint(Sketcher.Constraint("Block", 14))
sketch3.addConstraint(Sketcher.Constraint("Block", 15))
sketch3.addConstraint(Sketcher.Constraint("Block", 17))
sketch3.addConstraint(Sketcher.Constraint("Block", 19))
sketch3.addConstraint(Sketcher.Constraint("Block", 20))
sketch3.addConstraint(Sketcher.Constraint("Block", 22))
sketch3.addConstraint(Sketcher.Constraint("Block", 23))
sketch3.addConstraint(Sketcher.Constraint("Coincident", 0, 2, 1, 1))
sketch3.addConstraint(Sketcher.Constraint("Coincident", 1, 2, 2, 2))
sketch3.addConstraint(Sketcher.Constraint("Coincident", 3, 1, 4, 1))
sketch3.addConstraint(Sketcher.Constraint("Coincident", 4, 2, 5, 1))
sketch3.addConstraint(Sketcher.Constraint("Coincident", 5, 2, 6, 1))
sketch3.addConstraint(Sketcher.Constraint("Coincident", 6, 2, 0, 1))
sketch3.addConstraint(Sketcher.Constraint("Coincident", 7, 2, 8, 1))
sketch3.addConstraint(Sketcher.Constraint("Coincident", 8, 2, 9, 2))
sketch3.addConstraint(Sketcher.Constraint("Coincident", 10, 1, 11, 1))
sketch3.addConstraint(Sketcher.Constraint("Coincident", 11, 2, 7, 1))
sketch3.addConstraint(Sketcher.Constraint("Coincident", 12, 1, 13, 1))
sketch3.addConstraint(Sketcher.Constraint("Coincident", 13, 2, 14, 2))
sketch3.addConstraint(Sketcher.Constraint("Coincident", 15, 1, 16, 1))
sketch3.addConstraint(Sketcher.Constraint("Coincident", 16, 2, 17, 2))
sketch3.addConstraint(Sketcher.Constraint("Coincident", 18, 2, 19, 2))
sketch3.addConstraint(Sketcher.Constraint("Coincident", 20, 1, 21, 1))
sketch3.addConstraint(Sketcher.Constraint("Coincident", 21, 2, 22, 2))
sketch3.addConstraint(Sketcher.Constraint("Coincident", 23, 1, 18, 1))
sketch3.addConstraint(Sketcher.Constraint("Coincident", 24, 2, 25, 1))
sketch3.addConstraint(Sketcher.Constraint("Coincident", 25, 2, 26, 1))
sketch3.addConstraint(Sketcher.Constraint("Coincident", 26, 2, 27, 1))
sketch3.addConstraint(Sketcher.Constraint("Coincident", 27, 2, 28, 1))
sketch3.addConstraint(Sketcher.Constraint("Coincident", 28, 2, 29, 1))
sketch3.addConstraint(Sketcher.Constraint("Coincident", 29, 2, 24, 1))
sketch3.addConstraint(Sketcher.Constraint("Coincident", 30, 2, 31, 1))
sketch3.addConstraint(Sketcher.Constraint("Coincident", 31, 2, 32, 1))
sketch3.addConstraint(Sketcher.Constraint("Coincident", 32, 2, 33, 1))
sketch3.addConstraint(Sketcher.Constraint("Coincident", 33, 2, 34, 1))
sketch3.addConstraint(Sketcher.Constraint("Coincident", 34, 2, 35, 1))
sketch3.addConstraint(Sketcher.Constraint("Coincident", 35, 2, 36, 1))
sketch3.addConstraint(Sketcher.Constraint("Coincident", 36, 2, 37, 1))
sketch3.addConstraint(Sketcher.Constraint("Coincident", 37, 2, 30, 1))
sketch3.addConstraint(Sketcher.Constraint("Coincident", 38, 2, 39, 1))
sketch3.addConstraint(Sketcher.Constraint("Coincident", 39, 2, 40, 1))
sketch3.addConstraint(Sketcher.Constraint("Coincident", 40, 2, 38, 1))
sketch3.addConstraint(Sketcher.Constraint("Coincident", 41, 2, 42, 1))
sketch3.addConstraint(Sketcher.Constraint("Coincident", 42, 2, 43, 1))
sketch3.addConstraint(Sketcher.Constraint("Coincident", 43, 2, 44, 1))
sketch3.addConstraint(Sketcher.Constraint("Coincident", 44, 2, 45, 1))
sketch3.addConstraint(Sketcher.Constraint("Coincident", 45, 2, 46, 1))
sketch3.addConstraint(Sketcher.Constraint("Coincident", 46, 2, 47, 1))
sketch3.addConstraint(Sketcher.Constraint("Coincident", 47, 2, 48, 1))
sketch3.addConstraint(Sketcher.Constraint("Coincident", 48, 2, 49, 1))
sketch3.addConstraint(Sketcher.Constraint("Coincident", 49, 2, 50, 1))
sketch3.addConstraint(Sketcher.Constraint("Coincident", 50, 2, 51, 1))
sketch3.addConstraint(Sketcher.Constraint("Coincident", 51, 2, 52, 1))
sketch3.addConstraint(Sketcher.Constraint("Coincident", 52, 2, 53, 1))
sketch3.addConstraint(Sketcher.Constraint("Coincident", 53, 2, 54, 1))
sketch3.addConstraint(Sketcher.Constraint("Coincident", 54, 2, 55, 1))
sketch3.addConstraint(Sketcher.Constraint("Coincident", 55, 2, 41, 1))
sketch3.addConstraint(Sketcher.Constraint("Coincident", 56, 2, 57, 1))
sketch3.addConstraint(Sketcher.Constraint("Coincident", 57, 2, 58, 1))
sketch3.addConstraint(Sketcher.Constraint("Coincident", 58, 2, 59, 1))
sketch3.addConstraint(Sketcher.Constraint("Coincident", 59, 2, 56, 1))
sketch3.addConstraint(Sketcher.Constraint("Coincident", 60, 2, 61, 1))
sketch3.addConstraint(Sketcher.Constraint("Coincident", 61, 2, 62, 1))
sketch3.addConstraint(Sketcher.Constraint("Coincident", 62, 2, 63, 1))
sketch3.addConstraint(Sketcher.Constraint("Coincident", 63, 2, 64, 1))
sketch3.addConstraint(Sketcher.Constraint("Coincident", 64, 2, 65, 1))
sketch3.addConstraint(Sketcher.Constraint("Coincident", 65, 2, 66, 1))
sketch3.addConstraint(Sketcher.Constraint("Coincident", 66, 2, 67, 1))
sketch3.addConstraint(Sketcher.Constraint("Coincident", 67, 2, 68, 1))
sketch3.addConstraint(Sketcher.Constraint("Coincident", 68, 2, 60, 1))
sketch3.addConstraint(Sketcher.Constraint("Coincident", 69, 2, 70, 1))
sketch3.addConstraint(Sketcher.Constraint("Coincident", 70, 2, 71, 1))
sketch3.addConstraint(Sketcher.Constraint("Coincident", 71, 2, 72, 1))
sketch3.addConstraint(Sketcher.Constraint("Coincident", 72, 2, 73, 1))
sketch3.addConstraint(Sketcher.Constraint("Coincident", 73, 2, 74, 1))
sketch3.addConstraint(Sketcher.Constraint("Coincident", 74, 2, 75, 1))
sketch3.addConstraint(Sketcher.Constraint("Coincident", 75, 2, 76, 1))
sketch3.addConstraint(Sketcher.Constraint("Coincident", 76, 2, 69, 1))
sketch3.addConstraint(Sketcher.Constraint("Coincident", 77, 2, 78, 1))
sketch3.addConstraint(Sketcher.Constraint("Coincident", 78, 2, 79, 1))
sketch3.addConstraint(Sketcher.Constraint("Coincident", 79, 2, 77, 1))
sketch3.addConstraint(Sketcher.Constraint("Vertical", 0))
sketch3.addConstraint(Sketcher.Constraint("Horizontal", 1))
sketch3.addConstraint(Sketcher.Constraint("Horizontal", 4))
sketch3.addConstraint(Sketcher.Constraint("Vertical", 5))
sketch3.addConstraint(Sketcher.Constraint("Horizontal", 6))
sketch3.addConstraint(Sketcher.Constraint("Vertical", 7))
sketch3.addConstraint(Sketcher.Constraint("Horizontal", 8))
sketch3.addConstraint(Sketcher.Constraint("Horizontal", 11))
sketch3.addConstraint(Sketcher.Constraint("Horizontal", 24))
sketch3.addConstraint(Sketcher.Constraint("Vertical", 25))
sketch3.addConstraint(Sketcher.Constraint("Horizontal", 26))
sketch3.addConstraint(Sketcher.Constraint("Vertical", 27))
sketch3.addConstraint(Sketcher.Constraint("Horizontal", 28))
sketch3.addConstraint(Sketcher.Constraint("Vertical", 29))
sketch3.addConstraint(Sketcher.Constraint("Horizontal", 30))
sketch3.addConstraint(Sketcher.Constraint("Horizontal", 32))
sketch3.addConstraint(Sketcher.Constraint("Horizontal", 34))
sketch3.addConstraint(Sketcher.Constraint("Horizontal", 36))
sketch3.addConstraint(Sketcher.Constraint("Horizontal", 40))
sketch3.addConstraint(Sketcher.Constraint("Horizontal", 42))
sketch3.addConstraint(Sketcher.Constraint("Vertical", 43))
sketch3.addConstraint(Sketcher.Constraint("Horizontal", 44))
sketch3.addConstraint(Sketcher.Constraint("Vertical", 45))
sketch3.addConstraint(Sketcher.Constraint("Horizontal", 48))
sketch3.addConstraint(Sketcher.Constraint("Vertical", 51))
sketch3.addConstraint(Sketcher.Constraint("Horizontal", 52))
sketch3.addConstraint(Sketcher.Constraint("Vertical", 53))
sketch3.addConstraint(Sketcher.Constraint("Horizontal", 54))
sketch3.addConstraint(Sketcher.Constraint("Vertical", 56))
sketch3.addConstraint(Sketcher.Constraint("Horizontal", 57))
sketch3.addConstraint(Sketcher.Constraint("Vertical", 58))
sketch3.addConstraint(Sketcher.Constraint("Horizontal", 59))
sketch3.addConstraint(Sketcher.Constraint("Horizontal", 62))
sketch3.addConstraint(Sketcher.Constraint("Vertical", 64))
sketch3.addConstraint(Sketcher.Constraint("Horizontal", 65))
sketch3.addConstraint(Sketcher.Constraint("Vertical", 66))
sketch3.addConstraint(Sketcher.Constraint("Horizontal", 68))
sketch3.addConstraint(Sketcher.Constraint("Horizontal", 69))
sketch3.addConstraint(Sketcher.Constraint("Horizontal", 71))
sketch3.addConstraint(Sketcher.Constraint("Horizontal", 73))
sketch3.addConstraint(Sketcher.Constraint("Horizontal", 75))
sketch3.addConstraint(Sketcher.Constraint("Horizontal", 79))
sketch3.addConstraint(Sketcher.Constraint("Parallel", 31, 70))
sketch3.addConstraint(Sketcher.Constraint("Parallel", 33, 72))
sketch3.addConstraint(Sketcher.Constraint("Parallel", 35, 74))
sketch3.addConstraint(Sketcher.Constraint("Parallel", 37, 76))
sketch3.addConstraint(Sketcher.Constraint("Parallel", 38, 77))
sketch3.addConstraint(Sketcher.Constraint("Parallel", 39, 78))
sketch3.addConstraint(Sketcher.Constraint("Horizontal", 4, 2, 25, 2))
sketch3.addConstraint(Sketcher.Constraint("Horizontal", 6, 2, 27, 2))
sketch3.addConstraint(Sketcher.Constraint("Horizontal", 28, 2, 31, 2))
sketch3.addConstraint(Sketcher.Constraint("Horizontal", 26, 2, 33, 2))
sketch3.addConstraint(Sketcher.Constraint("Horizontal", 32, 2, 35, 2))
sketch3.addConstraint(Sketcher.Constraint("Horizontal", 34, 2, 41, 2))
sketch3.addConstraint(Sketcher.Constraint("Horizontal", 36, 2, 43, 2))
sketch3.addConstraint(Sketcher.Constraint("Horizontal", 44, 2, 47, 2))
sketch3.addConstraint(Sketcher.Constraint("Horizontal", 48, 2, 51, 2))
sketch3.addConstraint(Sketcher.Constraint("Horizontal", 42, 2, 53, 2))
sketch3.addConstraint(Sketcher.Constraint("Horizontal", 52, 2, 56, 2))
sketch3.addConstraint(Sketcher.Constraint("Horizontal", 54, 2, 58, 2))
sketch3.addConstraint(Sketcher.Constraint("Horizontal", 59, 2, 61, 2))
sketch3.addConstraint(Sketcher.Constraint("Horizontal", 57, 2, 64, 2))
sketch3.addConstraint(Sketcher.Constraint("Horizontal", 62, 2, 67, 2))
sketch3.addConstraint(Sketcher.Constraint("Horizontal", 37, 2, 69, 2))
sketch3.addConstraint(Sketcher.Constraint("Horizontal", 65, 2, 70, 2))
sketch3.addConstraint(Sketcher.Constraint("Horizontal", 68, 2, 72, 2))
sketch3.addConstraint(Sketcher.Constraint("Horizontal", 71, 2, 74, 2))
sketch3.addConstraint(Sketcher.Constraint("Horizontal", 38, 2, 77, 2))
sketch3.addConstraint(Sketcher.Constraint("Horizontal", 40, 2, 78, 2))
sketch3.addConstraint(Sketcher.Constraint("Vertical", 6, 2, 7, 2))
sketch3.addConstraint(Sketcher.Constraint("Equal", 6, 44))
sketch3.addConstraint(Sketcher.Constraint("Equal", 44, 52))
sketch3.addConstraint(Sketcher.Constraint("Equal", 52, 57))
sketch3.addConstraint(Sketcher.Constraint("Equal", 59, 65))
sketch3.addConstraint(Sketcher.Constraint("Equal", 30, 69))
sketch3.addConstraint(Sketcher.Constraint("Equal", 32, 71))
sketch3.addConstraint(Sketcher.Constraint("Equal", 34, 73))
sketch3.addConstraint(Sketcher.Constraint("Equal", 69, 45))
sketch3.addConstraint(Sketcher.Constraint("Equal", 41, 55))
sketch3.addConstraint(Sketcher.Constraint("DistanceY", 5, 2, 5, 1, 3.5))
sketch3.addConstraint(Sketcher.Constraint("DistanceX", 26, 2, 26, 1, 0.590199))
sketch3.addConstraint(Sketcher.Constraint("DistanceX", 40, 2, 40, 1, 1.027699))
sketch3.addConstraint(Sketcher.Constraint("DistanceX", 1, 1, 1, 2, 0.715909))
sketch3.addConstraint(Sketcher.Constraint("DistanceX", 4, 2, 4, 1, 1.308949))
sketch3.addConstraint(Sketcher.Constraint("DistanceX", 24, 2, 24, 1, 1.62358))
sketch3.addConstraint(Sketcher.Constraint("DistanceX", 34, 2, 34, 1, 0.49858))
sketch3.addConstraint(Sketcher.Constraint("DistanceX", 62, 2, 62, 1, 0.629261))
sketch3.addConstraint(Sketcher.Constraint("DistanceY", 51, 2, 51, 1, 1.37358))
sketch3.addConstraint(Sketcher.Constraint("DistanceY", 66, 1, 66, 2, 1.315341))
sketch3.addConstraint(Sketcher.Constraint("Distance", 33, 3.743769))
sketch3.addConstraint(Sketcher.Constraint("Distance", 46, 1.426128))
sketch3.addConstraint(Sketcher.Constraint("Distance", 67, 2.483158))
sketch3.addConstraint(Sketcher.Constraint("DistanceX", 30, 1, 30, 2, 1.328125))
sketch3.addConstraint(Sketcher.Constraint("DistanceX", 32, 1, 32, 2, 0.586648))
sketch3.addConstraint(Sketcher.Constraint("DistanceX", 36, 1, 36, 2, 0.585938))
sketch3.addConstraint(Sketcher.Constraint("DistanceX", 42, 2, 42, 1, 0.700284))
sketch3.addConstraint(Sketcher.Constraint("DistanceX", 48, 1, 48, 2, 0.449574))
sketch3.addConstraint(Sketcher.Constraint("DistanceX", 54, 2, 54, 1, 0.707386))
sketch3.addConstraint(Sketcher.Constraint("DistanceX", 68, 2, 68, 1, 0.631392))
sketch3.addConstraint(Sketcher.Constraint("DistanceY", 25, 1, 25, 2, 3.045455))
sketch3.addConstraint(Sketcher.Constraint("DistanceY", 64, 2, 64, 1, 1.303977))
sketch3.addConstraint(Sketcher.Constraint("DistanceY", 30, 2, -1, 1, 0.590909))
sketch3.addConstraint(Sketcher.Constraint("DistanceX", -1, 1, 32, 2, 0.28054))
sketch3.addConstraint(Sketcher.Constraint("DistanceX", 35, 2, -1, 1, 2.869318))
sketch3.addConstraint(Sketcher.Constraint("DistanceX", 39, 2, -1, 1, 0.78054))
sketch3.addConstraint(Sketcher.Constraint("DistanceX", -1, 1, 41, 2, 1.348011))
sketch3.addConstraint(Sketcher.Constraint("DistanceX", -1, 1, 46, 2, 1.191051))
sketch3.addConstraint(Sketcher.Constraint("DistanceX", -1, 1, 47, 2, 2.191051))
sketch3.addConstraint(Sketcher.Constraint("DistanceX", -1, 1, 52, 2, 4.193182))
sketch3.addConstraint(Sketcher.Constraint("DistanceY", 55, 2, -1, 1, 0.78125))
sketch3.addConstraint(Sketcher.Constraint("DistanceX", -1, 1, 65, 2, 7.691051))
sketch3.addConstraint(Sketcher.Constraint("DistanceX", -1, 1, 70, 2, 11.466619))
sketch3.addConstraint(Sketcher.Constraint("DistanceX", -1, 1, 76, 2, 9.81108))
sketch3.addConstraint(Sketcher.Constraint("DistanceX", -1, 1, 79, 2, 9.964489))
sketch3.addConstraint(Sketcher.Constraint("Distance", 38, 1.576033))
sketch3.addConstraint(Sketcher.Constraint("Distance", 39, 1.577653))
sketch3.addConstraint(Sketcher.Constraint("Distance", 49, 2.938372))
sketch3.addConstraint(Sketcher.Constraint("Distance", 50, 1.387707))
sketch3.addConstraint(Sketcher.Constraint("Distance", 60, 1.909254))
sketch3.addConstraint(Sketcher.Constraint("Distance", 61, 1.907997))
sketch3.addConstraint(Sketcher.Constraint("Distance", 63, 2.493498))
sketch3.addConstraint(Sketcher.Constraint("DistanceX", 24, 2, -1, 1, 4.580256))
sketch3.addConstraint(Sketcher.Constraint("DistanceY", -1, 1, 38, 2, 1.354403))
sketch3.addConstraint(Sketcher.Constraint("DistanceX", -1, 1, 56, 2, 4.953125))
pad3 = body.newObject("PartDesign::Pad", "Pad002")
pad3.Profile = sketch3
pad3.Length = 0.6

doc.recompute()
